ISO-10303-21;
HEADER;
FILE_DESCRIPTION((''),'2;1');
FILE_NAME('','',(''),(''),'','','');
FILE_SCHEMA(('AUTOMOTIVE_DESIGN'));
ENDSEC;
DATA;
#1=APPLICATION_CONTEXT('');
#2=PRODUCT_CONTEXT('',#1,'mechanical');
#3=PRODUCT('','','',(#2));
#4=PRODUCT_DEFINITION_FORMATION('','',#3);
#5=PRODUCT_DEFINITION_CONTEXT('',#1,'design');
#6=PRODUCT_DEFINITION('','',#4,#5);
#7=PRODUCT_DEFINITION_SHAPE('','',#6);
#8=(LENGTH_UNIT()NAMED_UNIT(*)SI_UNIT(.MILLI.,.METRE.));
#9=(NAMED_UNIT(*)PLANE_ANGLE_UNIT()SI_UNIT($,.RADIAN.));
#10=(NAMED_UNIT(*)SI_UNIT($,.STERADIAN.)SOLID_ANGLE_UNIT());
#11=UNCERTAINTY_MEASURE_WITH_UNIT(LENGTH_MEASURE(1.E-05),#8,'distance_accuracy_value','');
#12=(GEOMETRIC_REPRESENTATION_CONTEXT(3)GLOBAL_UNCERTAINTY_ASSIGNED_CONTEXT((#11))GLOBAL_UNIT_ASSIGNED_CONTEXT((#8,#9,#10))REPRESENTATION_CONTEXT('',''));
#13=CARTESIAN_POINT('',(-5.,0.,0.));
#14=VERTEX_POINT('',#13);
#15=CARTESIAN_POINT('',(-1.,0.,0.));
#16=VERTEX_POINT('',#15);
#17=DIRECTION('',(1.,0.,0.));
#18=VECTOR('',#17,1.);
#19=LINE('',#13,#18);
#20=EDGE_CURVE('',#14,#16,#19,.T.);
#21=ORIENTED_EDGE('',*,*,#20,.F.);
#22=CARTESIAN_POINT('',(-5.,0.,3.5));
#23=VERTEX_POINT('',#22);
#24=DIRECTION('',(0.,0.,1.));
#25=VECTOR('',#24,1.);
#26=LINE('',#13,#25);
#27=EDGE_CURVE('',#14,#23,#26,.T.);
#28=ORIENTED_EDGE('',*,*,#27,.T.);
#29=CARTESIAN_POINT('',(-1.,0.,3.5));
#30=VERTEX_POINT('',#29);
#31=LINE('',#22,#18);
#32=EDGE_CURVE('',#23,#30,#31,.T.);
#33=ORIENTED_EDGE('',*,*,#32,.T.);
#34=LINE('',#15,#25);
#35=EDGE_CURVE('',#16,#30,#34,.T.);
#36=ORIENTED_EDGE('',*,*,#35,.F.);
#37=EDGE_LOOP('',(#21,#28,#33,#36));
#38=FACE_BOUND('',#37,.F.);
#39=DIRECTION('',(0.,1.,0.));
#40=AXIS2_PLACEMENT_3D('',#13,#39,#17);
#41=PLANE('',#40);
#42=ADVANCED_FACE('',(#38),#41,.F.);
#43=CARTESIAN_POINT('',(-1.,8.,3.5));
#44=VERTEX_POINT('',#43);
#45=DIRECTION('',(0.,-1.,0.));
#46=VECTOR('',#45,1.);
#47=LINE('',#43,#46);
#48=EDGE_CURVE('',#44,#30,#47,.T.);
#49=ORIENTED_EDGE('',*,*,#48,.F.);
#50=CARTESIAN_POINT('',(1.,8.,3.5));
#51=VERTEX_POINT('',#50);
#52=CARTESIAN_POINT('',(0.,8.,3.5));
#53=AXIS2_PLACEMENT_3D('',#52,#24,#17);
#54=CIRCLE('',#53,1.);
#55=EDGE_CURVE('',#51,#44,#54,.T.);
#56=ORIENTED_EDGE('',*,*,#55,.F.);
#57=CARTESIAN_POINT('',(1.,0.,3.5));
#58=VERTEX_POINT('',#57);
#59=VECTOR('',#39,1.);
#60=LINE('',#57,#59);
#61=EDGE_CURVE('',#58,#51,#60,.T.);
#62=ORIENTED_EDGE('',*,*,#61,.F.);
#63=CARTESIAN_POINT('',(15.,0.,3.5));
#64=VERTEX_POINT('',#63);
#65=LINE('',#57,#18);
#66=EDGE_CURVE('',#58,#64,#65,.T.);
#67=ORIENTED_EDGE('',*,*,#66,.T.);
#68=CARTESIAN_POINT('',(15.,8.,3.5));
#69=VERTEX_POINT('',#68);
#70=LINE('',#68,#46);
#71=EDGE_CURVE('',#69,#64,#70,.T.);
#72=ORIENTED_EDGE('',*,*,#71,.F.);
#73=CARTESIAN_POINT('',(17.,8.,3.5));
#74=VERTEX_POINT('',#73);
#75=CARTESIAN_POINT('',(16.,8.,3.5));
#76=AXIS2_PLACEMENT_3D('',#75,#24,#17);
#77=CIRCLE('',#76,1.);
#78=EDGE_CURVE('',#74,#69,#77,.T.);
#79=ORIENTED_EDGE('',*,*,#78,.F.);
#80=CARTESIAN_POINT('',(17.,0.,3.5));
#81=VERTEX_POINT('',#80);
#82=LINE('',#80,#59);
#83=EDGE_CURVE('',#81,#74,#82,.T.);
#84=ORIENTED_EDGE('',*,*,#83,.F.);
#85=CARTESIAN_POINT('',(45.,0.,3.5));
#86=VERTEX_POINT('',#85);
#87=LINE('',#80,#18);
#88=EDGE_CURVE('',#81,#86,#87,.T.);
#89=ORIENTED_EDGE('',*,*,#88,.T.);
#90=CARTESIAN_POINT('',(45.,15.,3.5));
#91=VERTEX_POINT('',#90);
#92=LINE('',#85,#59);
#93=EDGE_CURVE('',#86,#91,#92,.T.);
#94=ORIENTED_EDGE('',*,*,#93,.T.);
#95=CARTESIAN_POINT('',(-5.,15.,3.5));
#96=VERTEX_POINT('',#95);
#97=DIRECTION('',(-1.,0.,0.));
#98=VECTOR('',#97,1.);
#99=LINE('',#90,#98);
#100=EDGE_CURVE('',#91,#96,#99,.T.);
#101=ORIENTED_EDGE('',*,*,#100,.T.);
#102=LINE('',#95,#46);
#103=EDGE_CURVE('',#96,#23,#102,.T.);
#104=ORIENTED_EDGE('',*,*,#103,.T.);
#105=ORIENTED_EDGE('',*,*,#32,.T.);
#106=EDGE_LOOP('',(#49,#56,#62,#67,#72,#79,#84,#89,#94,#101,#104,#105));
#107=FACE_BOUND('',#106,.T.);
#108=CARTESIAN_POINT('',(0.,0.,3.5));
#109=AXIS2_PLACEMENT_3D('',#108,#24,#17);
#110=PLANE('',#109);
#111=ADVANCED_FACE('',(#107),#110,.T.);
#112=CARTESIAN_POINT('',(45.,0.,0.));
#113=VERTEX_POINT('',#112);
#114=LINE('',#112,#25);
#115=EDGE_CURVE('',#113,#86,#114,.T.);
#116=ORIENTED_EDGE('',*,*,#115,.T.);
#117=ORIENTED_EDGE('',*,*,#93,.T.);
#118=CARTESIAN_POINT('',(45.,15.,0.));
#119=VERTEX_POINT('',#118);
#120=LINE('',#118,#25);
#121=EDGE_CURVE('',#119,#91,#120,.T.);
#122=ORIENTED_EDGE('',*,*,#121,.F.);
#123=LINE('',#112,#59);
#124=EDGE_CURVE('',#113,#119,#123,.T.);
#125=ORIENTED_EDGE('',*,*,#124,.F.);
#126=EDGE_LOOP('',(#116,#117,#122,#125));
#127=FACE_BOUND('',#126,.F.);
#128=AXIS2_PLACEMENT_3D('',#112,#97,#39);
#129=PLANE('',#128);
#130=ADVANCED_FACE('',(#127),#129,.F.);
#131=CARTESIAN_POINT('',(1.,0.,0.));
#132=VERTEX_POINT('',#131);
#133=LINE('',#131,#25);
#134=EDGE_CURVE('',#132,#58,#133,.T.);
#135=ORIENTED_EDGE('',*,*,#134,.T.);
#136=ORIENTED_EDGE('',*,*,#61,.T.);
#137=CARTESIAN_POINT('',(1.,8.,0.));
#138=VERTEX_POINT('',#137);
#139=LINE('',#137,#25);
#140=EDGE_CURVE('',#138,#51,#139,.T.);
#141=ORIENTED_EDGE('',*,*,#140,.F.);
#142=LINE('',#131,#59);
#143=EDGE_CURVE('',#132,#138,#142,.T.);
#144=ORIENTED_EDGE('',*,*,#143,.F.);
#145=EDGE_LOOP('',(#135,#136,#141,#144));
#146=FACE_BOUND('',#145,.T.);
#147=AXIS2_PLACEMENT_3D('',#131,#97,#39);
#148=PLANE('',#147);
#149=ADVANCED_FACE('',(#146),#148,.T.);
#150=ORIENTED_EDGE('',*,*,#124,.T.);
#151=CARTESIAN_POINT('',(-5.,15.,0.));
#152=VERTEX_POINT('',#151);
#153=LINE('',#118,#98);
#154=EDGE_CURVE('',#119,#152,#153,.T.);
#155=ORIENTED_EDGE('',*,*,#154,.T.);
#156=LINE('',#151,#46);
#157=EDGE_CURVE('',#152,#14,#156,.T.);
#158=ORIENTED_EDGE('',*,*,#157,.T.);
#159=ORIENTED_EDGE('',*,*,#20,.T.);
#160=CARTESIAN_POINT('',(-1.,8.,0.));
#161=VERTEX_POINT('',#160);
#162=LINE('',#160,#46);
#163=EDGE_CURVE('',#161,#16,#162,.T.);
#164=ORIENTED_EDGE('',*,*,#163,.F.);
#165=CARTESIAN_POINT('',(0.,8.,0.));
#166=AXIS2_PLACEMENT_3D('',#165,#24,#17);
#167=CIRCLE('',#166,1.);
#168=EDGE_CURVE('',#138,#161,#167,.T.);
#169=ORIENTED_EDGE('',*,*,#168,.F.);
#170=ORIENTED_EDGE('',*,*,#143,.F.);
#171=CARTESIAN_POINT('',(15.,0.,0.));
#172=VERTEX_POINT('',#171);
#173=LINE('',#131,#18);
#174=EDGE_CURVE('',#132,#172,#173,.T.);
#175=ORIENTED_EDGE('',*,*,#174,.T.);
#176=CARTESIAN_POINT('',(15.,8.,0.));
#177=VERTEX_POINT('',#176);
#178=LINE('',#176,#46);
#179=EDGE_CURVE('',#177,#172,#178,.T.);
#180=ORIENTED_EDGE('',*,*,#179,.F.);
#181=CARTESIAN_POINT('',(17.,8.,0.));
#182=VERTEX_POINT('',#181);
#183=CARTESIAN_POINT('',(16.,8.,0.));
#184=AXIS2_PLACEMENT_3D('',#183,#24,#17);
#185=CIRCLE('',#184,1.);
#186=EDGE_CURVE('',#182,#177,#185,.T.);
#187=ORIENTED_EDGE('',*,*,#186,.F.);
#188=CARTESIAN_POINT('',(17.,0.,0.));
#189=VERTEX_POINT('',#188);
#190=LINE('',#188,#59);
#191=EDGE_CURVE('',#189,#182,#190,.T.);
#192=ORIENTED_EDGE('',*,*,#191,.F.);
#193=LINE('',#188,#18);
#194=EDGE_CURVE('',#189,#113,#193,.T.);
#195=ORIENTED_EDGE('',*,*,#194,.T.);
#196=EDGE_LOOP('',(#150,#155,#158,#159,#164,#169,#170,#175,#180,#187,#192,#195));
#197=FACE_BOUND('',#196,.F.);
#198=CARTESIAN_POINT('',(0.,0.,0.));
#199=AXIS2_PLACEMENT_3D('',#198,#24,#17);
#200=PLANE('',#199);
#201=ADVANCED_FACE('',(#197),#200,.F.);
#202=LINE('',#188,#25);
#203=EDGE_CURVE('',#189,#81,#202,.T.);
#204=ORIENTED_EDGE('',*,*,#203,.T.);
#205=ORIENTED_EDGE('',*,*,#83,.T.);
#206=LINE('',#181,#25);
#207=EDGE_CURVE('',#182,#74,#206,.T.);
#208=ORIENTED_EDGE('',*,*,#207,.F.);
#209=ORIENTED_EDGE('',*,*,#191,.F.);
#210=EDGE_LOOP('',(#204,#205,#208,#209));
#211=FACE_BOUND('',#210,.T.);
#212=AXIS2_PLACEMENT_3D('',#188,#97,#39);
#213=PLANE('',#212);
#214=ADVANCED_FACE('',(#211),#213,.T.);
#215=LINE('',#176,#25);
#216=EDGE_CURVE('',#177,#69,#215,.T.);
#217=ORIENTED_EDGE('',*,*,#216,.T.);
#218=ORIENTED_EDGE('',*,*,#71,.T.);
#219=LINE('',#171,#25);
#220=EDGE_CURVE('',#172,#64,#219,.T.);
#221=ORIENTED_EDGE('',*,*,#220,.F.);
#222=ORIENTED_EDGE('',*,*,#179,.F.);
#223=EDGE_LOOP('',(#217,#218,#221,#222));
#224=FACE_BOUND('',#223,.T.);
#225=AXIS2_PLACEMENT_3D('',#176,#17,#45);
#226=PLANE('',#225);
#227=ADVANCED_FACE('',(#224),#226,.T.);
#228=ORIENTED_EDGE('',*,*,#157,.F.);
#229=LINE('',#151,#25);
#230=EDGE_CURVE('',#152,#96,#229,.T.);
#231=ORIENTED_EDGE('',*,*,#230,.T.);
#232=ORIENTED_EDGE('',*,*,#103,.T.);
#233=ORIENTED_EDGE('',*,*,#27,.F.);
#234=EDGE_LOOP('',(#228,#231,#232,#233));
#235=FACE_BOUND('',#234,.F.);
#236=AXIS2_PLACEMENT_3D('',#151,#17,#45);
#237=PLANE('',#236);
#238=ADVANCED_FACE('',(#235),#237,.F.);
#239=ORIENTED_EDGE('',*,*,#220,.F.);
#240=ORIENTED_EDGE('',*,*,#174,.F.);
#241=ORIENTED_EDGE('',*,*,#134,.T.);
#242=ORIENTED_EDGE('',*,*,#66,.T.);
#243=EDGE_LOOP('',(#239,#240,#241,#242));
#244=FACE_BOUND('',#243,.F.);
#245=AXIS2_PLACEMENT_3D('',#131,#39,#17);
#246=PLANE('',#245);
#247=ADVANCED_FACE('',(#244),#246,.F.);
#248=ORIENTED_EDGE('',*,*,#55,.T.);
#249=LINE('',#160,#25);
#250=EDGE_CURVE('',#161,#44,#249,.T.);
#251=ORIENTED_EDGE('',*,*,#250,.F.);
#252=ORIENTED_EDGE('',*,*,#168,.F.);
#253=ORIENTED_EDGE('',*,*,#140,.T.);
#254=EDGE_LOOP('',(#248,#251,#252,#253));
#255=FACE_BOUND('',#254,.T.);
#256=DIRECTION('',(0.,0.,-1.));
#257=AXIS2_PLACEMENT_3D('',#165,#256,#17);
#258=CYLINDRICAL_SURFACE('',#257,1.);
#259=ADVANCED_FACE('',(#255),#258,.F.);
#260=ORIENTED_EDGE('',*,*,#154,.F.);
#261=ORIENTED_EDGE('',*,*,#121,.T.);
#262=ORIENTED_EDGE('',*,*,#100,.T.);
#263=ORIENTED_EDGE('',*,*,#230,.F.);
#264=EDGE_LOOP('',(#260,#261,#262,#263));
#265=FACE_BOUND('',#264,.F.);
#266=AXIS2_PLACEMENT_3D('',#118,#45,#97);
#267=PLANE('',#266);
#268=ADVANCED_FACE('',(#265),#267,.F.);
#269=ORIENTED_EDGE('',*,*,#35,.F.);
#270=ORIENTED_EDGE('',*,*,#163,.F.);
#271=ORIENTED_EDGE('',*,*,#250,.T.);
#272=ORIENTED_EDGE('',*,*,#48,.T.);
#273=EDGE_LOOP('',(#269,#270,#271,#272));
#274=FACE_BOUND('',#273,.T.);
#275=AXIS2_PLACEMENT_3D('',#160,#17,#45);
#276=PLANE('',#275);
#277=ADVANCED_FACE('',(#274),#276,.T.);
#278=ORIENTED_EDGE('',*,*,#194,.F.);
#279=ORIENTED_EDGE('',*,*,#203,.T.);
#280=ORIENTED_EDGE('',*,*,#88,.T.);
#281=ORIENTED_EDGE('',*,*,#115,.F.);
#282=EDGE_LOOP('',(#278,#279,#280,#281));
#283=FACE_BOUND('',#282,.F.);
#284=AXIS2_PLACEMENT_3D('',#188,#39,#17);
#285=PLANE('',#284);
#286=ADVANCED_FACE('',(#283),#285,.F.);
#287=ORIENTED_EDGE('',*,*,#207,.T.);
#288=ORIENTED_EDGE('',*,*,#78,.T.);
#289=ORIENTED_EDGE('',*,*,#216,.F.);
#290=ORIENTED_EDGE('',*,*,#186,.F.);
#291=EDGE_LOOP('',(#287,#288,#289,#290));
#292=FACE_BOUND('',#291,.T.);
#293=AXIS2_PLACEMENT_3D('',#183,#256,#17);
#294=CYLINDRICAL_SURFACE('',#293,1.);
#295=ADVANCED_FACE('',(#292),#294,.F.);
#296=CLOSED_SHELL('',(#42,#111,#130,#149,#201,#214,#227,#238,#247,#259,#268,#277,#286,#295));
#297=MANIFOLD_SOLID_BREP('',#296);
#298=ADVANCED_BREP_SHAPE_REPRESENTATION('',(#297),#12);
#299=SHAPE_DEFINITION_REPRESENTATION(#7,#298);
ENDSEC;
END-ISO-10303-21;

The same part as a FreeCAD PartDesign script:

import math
import FreeCAD as App
import Part
import Sketcher

doc = App.newDocument("Part")
body = doc.addObject("PartDesign::Body", "Body")

# Sketch on XY plane
sketch1 = body.newObject("Sketcher::SketchObject", "Sketch")
sketch1.AttachmentSupport = (doc.getObject("XY_Plane"), [""])
sketch1.MapMode = "FlatFace"
sketch1.addGeometry([
    Part.LineSegment(App.Vector(45, 0, 0), App.Vector(45, 15, 0)),  # 0
    Part.LineSegment(App.Vector(45, 15, 0), App.Vector(-5, 15, 0)),  # 1
    Part.LineSegment(App.Vector(-5, 15, 0), App.Vector(-5, 0, 0)),  # 2
    Part.LineSegment(App.Vector(-5, 0, 0), App.Vector(-1, 0, 0)),  # 3
    Part.LineSegment(App.Vector(-1, 0, 0), App.Vector(-1, 8, 0)),  # 4
    Part.ArcOfCircle(Part.Circle(App.Vector(0, 8, 0), App.Vector(0, 0, 1), 1), math.radians(0), math.radians(180)),  # 5
    Part.LineSegment(App.Vector(1, 8, 0), App.Vector(1, 0, 0)),  # 6
    Part.LineSegment(App.Vector(1, 0, 0), App.Vector(15, 0, 0)),  # 7
    Part.LineSegment(App.Vector(15, 0, 0), App.Vector(15, 8, 0)),  # 8
    Part.ArcOfCircle(Part.Circle(App.Vector(16, 8, 0), App.Vector(0, 0, 1), 1), math.radians(0), math.radians(180)),  # 9
    Part.LineSegment(App.Vector(17, 8, 0), App.Vector(17, 0, 0)),  # 10
    Part.LineSegment(App.Vector(17, 0, 0), App.Vector(45, 0, 0)),  # 11
], False)
sketch1.addConstraint([
    Sketcher.Constraint("Coincident", 0, 2, 1, 1),
    Sketcher.Constraint("Coincident", 1, 2, 2, 1),
    Sketcher.Constraint("Coincident", 2, 2, 3, 1),
    Sketcher.Constraint("Coincident", 3, 2, 4, 1),
    Sketcher.Constraint("Tangent", 4, 2, 5, 2),
    Sketcher.Constraint("Tangent", 5, 1, 6, 1),
    Sketcher.Constraint("Coincident", 6, 2, 7, 1),
    Sketcher.Constraint("Coincident", 7, 2, 8, 1),
    Sketcher.Constraint("Tangent", 8, 2, 9, 2),
    Sketcher.Constraint("Tangent", 9, 1, 10, 1),
    Sketcher.Constraint("Coincident", 10, 2, 11, 1),
    Sketcher.Constraint("Coincident", 11, 2, 0, 1),
    Sketcher.Constraint("Vertical", 0),
    Sketcher.Constraint("Horizontal", 1),
    Sketcher.Constraint("Vertical", 2),
    Sketcher.Constraint("Horizontal", 3),
    Sketcher.Constraint("Vertical", 4),
    Sketcher.Constraint("Vertical", 6),
    Sketcher.Constraint("Horizontal", 7),
    Sketcher.Constraint("Vertical", 8),
    Sketcher.Constraint("Vertical", 10),
    Sketcher.Constraint("Horizontal", 11),
    Sketcher.Constraint("Equal", 5, 9),
    Sketcher.Constraint("Symmetric", 3, 2, 6, 2, -1, 1),
    Sketcher.Constraint("PointOnObject", 2, 2, -1),
    Sketcher.Constraint("PointOnObject", 10, 2, -1),
    Sketcher.Constraint("Horizontal", 5, 3, 9, 3),
    Sketcher.Constraint("Radius", 5, 1.0),
    Sketcher.Constraint("DistanceX", 1, 2, 1, 1, 50.0),
    Sketcher.Constraint("DistanceY", 0, 1, 0, 2, 15.0),
    Sketcher.Constraint("DistanceX", -1, 1, 9, 3, 16.0),
    Sketcher.Constraint("DistanceX", 3, 1, 3, 2, 4.0),
    Sketcher.Constraint("DistanceY", 4, 1, 4, 2, 8.0),
])
pad1 = body.newObject("PartDesign::Pad", "Pad")
pad1.Profile = sketch1
pad1.Length = 3.5

doc.recompute()
